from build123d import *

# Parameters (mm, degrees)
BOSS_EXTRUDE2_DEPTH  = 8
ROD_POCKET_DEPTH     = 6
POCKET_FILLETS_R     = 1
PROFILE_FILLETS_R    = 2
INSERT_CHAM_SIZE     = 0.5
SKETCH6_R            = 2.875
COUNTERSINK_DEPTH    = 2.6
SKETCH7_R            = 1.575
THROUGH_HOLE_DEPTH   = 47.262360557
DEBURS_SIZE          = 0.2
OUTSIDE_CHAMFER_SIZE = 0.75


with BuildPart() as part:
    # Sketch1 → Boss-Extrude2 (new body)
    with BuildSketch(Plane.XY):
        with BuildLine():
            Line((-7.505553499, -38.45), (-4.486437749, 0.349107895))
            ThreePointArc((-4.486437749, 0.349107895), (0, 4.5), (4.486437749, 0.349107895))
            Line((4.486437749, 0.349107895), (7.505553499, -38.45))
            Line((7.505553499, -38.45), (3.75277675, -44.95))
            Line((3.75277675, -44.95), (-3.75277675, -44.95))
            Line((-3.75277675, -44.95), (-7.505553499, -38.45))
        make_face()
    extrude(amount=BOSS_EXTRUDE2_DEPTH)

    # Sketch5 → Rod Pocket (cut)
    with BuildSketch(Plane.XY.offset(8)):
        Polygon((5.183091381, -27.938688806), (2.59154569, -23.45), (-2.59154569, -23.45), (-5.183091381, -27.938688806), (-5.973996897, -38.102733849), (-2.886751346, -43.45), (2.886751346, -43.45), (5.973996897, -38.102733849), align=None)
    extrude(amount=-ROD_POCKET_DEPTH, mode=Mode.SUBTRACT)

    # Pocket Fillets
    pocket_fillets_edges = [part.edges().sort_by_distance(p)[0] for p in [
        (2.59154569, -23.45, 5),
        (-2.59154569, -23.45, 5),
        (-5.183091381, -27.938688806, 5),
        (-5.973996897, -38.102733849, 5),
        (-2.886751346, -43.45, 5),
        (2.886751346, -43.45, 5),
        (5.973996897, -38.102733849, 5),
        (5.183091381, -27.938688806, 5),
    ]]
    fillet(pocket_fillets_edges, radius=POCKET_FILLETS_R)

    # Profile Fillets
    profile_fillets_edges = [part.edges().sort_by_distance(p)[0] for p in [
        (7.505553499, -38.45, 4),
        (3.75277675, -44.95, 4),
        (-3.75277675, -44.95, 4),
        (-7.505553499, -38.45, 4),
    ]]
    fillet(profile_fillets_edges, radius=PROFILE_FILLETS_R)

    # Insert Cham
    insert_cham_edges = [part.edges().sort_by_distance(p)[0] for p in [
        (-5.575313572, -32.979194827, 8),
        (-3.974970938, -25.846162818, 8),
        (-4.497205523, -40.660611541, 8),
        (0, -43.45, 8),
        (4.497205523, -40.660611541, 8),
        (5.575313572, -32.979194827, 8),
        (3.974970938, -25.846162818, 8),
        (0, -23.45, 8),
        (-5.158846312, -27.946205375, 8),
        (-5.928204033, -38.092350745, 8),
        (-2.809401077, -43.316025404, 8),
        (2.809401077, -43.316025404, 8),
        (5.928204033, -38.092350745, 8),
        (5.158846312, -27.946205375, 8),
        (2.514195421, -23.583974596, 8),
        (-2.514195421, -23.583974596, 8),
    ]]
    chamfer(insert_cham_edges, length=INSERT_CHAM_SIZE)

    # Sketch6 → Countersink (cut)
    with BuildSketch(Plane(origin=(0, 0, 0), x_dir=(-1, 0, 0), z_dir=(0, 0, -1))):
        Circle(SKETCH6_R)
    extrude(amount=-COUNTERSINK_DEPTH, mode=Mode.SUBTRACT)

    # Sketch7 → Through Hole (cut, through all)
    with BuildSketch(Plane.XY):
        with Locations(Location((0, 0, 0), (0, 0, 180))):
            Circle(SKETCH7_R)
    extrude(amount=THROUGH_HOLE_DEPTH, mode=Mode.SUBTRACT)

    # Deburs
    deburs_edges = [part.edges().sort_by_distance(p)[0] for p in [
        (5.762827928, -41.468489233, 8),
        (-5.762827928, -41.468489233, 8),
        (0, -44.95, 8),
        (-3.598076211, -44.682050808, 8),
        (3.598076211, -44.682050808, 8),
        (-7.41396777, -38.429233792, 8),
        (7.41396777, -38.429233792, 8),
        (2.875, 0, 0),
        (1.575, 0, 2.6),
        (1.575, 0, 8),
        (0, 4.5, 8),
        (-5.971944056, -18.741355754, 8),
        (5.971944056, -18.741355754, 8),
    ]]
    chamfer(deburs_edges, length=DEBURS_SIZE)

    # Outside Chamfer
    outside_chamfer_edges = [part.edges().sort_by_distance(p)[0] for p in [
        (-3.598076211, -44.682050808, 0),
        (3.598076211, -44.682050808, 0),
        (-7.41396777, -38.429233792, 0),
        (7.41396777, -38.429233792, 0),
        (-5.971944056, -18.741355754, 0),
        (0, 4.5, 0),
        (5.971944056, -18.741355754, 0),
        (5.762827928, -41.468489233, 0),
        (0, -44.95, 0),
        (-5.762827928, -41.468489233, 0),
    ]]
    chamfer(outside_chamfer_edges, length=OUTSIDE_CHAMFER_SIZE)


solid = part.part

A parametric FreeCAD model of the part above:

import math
import FreeCAD as App
import Part
import Sketcher
Q = App.Units.Quantity


def edges_at(feature, points):
    """Names of the edges that pass closest to the given points."""
    edges = feature.Shape.Edges
    near = lambda p: min(range(len(edges)), key=lambda i: edges[i].distToShape(Part.Vertex(*p))[0])
    return sorted({f"Edge{near(p) + 1}" for p in points})


def add_polygon(sketch, points):
    """Adds a closed chain of lines whose ends are joined by coincident constraints."""
    first, n = sketch.GeometryCount, len(points)
    for a, b in zip(points, points[1:] + points[:1]):
        sketch.addGeometry(Part.LineSegment(App.Vector(*a, 0), App.Vector(*b, 0)), False)
    for i in range(n):
        sketch.addConstraint(Sketcher.Constraint("Coincident", first + i, 2, first + (i + 1) % n, 1))

doc = App.newDocument("Part")
body = doc.addObject("PartDesign::Body", "Body")

# Sketch on XY plane
sketch1 = body.newObject("Sketcher::SketchObject", "Sketch")
sketch1.AttachmentSupport = (doc.getObject("XY_Plane"), [""])
sketch1.MapMode = "FlatFace"
sketch1.addGeometry([
    Part.LineSegment(App.Vector(-4.5, 0.3, 0), App.Vector(-7.5, -38.5, 0)),  # 0
    Part.LineSegment(App.Vector(-7.5, -38.5, 0), App.Vector(-3.8, -45, 0)),  # 1
    Part.LineSegment(App.Vector(-3.8, -45, 0), App.Vector(3.8, -45, 0)),  # 2
    Part.LineSegment(App.Vector(3.8, -45, 0), App.Vector(7.5, -38.5, 0)),  # 3
    Part.LineSegment(App.Vector(7.5, -38.5, 0), App.Vector(4.5, 0.3, 0)),  # 4
    Part.ArcOfCircle(Part.Circle(App.Vector(0, 0, 0), App.Vector(0, 0, 1), 4.5), math.radians(4), math.radians(176)),  # 5
], False)
sketch1.addConstraint([
    Sketcher.Constraint("Coincident", 0, 2, 1, 1),
    Sketcher.Constraint("Coincident", 1, 2, 2, 1),
    Sketcher.Constraint("Coincident", 2, 2, 3, 1),
    Sketcher.Constraint("Coincident", 3, 2, 4, 1),
    Sketcher.Constraint("Tangent", 4, 2, 5, 1),
    Sketcher.Constraint("Tangent", 5, 2, 0, 1),
    Sketcher.Constraint("Horizontal", 2),
    Sketcher.Constraint("Coincident", 5, 3, -1, 1),
    Sketcher.Constraint("Symmetric", 0, 2, 3, 2, -2),
    Sketcher.Constraint("Equal", 1, 3),
    Sketcher.Constraint("Radius", 5, 4.5),
    Sketcher.Constraint("Angle", 1, Q("-60 deg")),
    Sketcher.Constraint("DistanceY", 1, 2, 0, 2, 6.5),
    Sketcher.Constraint("DistanceY", 0, 2, -1, 1, 38.45),
    Sketcher.Constraint("DistanceX", 2, 1, 2, 2, 7.505554),
])
pad1 = body.newObject("PartDesign::Pad", "Pad")
pad1.Profile = sketch1
pad1.Length = 8

# Sketch on XY plane
sketch2 = body.newObject("Sketcher::SketchObject", "Sketch001")
sketch2.AttachmentSupport = (doc.getObject("XY_Plane"), [""])
sketch2.MapMode = "FlatFace"
sketch2.AttachmentOffset = App.Placement(App.Vector(0, 0, 8), App.Rotation())
add_polygon(sketch2, [(5, -28), (3, -23), (-3, -23), (-5, -28), (-6, -38), (-3, -43), (3, -43), (6, -38)])  # lines 0-7
sketch2.addConstraint([
    Sketcher.Constraint("Horizontal", 1),
    Sketcher.Constraint("Horizontal", 5),
    Sketcher.Constraint("Symmetric", 3, 2, 6, 2, -2),
    Sketcher.Constraint("Symmetric", 2, 2, 7, 2, -2),
    Sketcher.Constraint("Parallel", 0, 4),
    Sketcher.Constraint("Parallel", 2, 6),
    Sketcher.Constraint("Equal", 0, 2),
    Sketcher.Constraint("Angle", 0, Q("120 deg")),
    Sketcher.Constraint("DistanceY", 4, 2, 1, 2, 20.0),
    Sketcher.Constraint("DistanceY", 0, 2, -1, 1, 23.45),
    Sketcher.Constraint("DistanceX", 1, 2, 1, 1, 5.183091),
    Sketcher.Constraint("Distance", 0, 5.183091),
    Sketcher.Constraint("Distance", 3, 10.19477),
    Sketcher.Constraint("Distance", 4, 6.174491),
])
pocket1 = body.newObject("PartDesign::Pocket", "Pocket")
pocket1.Profile = sketch2
pocket1.Length = 6
doc.recompute()

fillet = body.newObject("PartDesign::Fillet", "Fillet")
fillet.Base = (pocket1, edges_at(pocket1, [
    (2.592, -23.45, 5),
    (-2.592, -23.45, 5),
    (-5.183, -27.939, 5),
    (-5.974, -38.103, 5),
    (-2.887, -43.45, 5),
    (2.887, -43.45, 5),
    (5.974, -38.103, 5),
    (5.183, -27.939, 5),
]))
fillet.Radius = 1
doc.recompute()

fillet2 = body.newObject("PartDesign::Fillet", "Fillet001")
fillet2.Base = (fillet, edges_at(fillet, [
    (7.506, -38.45, 4),
    (3.753, -44.95, 4),
    (-3.753, -44.95, 4),
    (-7.506, -38.45, 4),
]))
fillet2.Radius = 2
doc.recompute()

chamfer = body.newObject("PartDesign::Chamfer", "Chamfer")
chamfer.Base = (fillet2, edges_at(fillet2, [
    (-5.575, -32.979, 8),
    (-3.975, -25.846, 8),
    (-4.497, -40.661, 8),
    (0, -43.45, 8),
    (4.497, -40.661, 8),
    (5.575, -32.979, 8),
    (3.975, -25.846, 8),
    (0, -23.45, 8),
    (-5.159, -27.946, 8),
    (-5.928, -38.092, 8),
    (-2.809, -43.316, 8),
    (2.809, -43.316, 8),
    (5.928, -38.092, 8),
    (5.159, -27.946, 8),
    (2.514, -23.584, 8),
    (-2.514, -23.584, 8),
]))
chamfer.Size = 0.5

# Sketch on XY plane
sketch3 = body.newObject("Sketcher::SketchObject", "Sketch002")
sketch3.AttachmentSupport = (doc.getObject("XY_Plane"), [""])
sketch3.MapMode = "FlatFace"
sketch3.addGeometry(Part.Circle(App.Vector(0, 0, 0), App.Vector(0, 0, 1), 2.9), False)
sketch3.addConstraint([
    Sketcher.Constraint("Coincident", 0, 3, -1, 1),
    Sketcher.Constraint("Diameter", 0, 5.75),
])
pocket2 = body.newObject("PartDesign::Pocket", "Pocket001")
pocket2.Profile = sketch3
pocket2.Length = 2.6
pocket2.Reversed = True

# Sketch on XY plane
sketch4 = body.newObject("Sketcher::SketchObject", "Sketch003")
sketch4.AttachmentSupport = (doc.getObject("XY_Plane"), [""])
sketch4.MapMode = "FlatFace"
sketch4.addGeometry(Part.Circle(App.Vector(0, 0, 0), App.Vector(0, 0, 1), 1.6), False)
sketch4.addConstraint([
    Sketcher.Constraint("Coincident", 0, 3, -1, 1),
    Sketcher.Constraint("Diameter", 0, 3.15),
])
pocket3 = body.newObject("PartDesign::Pocket", "Pocket002")
pocket3.Profile = sketch4
pocket3.Type = "ThroughAll"
pocket3.Reversed = True
doc.recompute()

chamfer2 = body.newObject("PartDesign::Chamfer", "Chamfer001")
chamfer2.Base = (pocket3, edges_at(pocket3, [
    (5.763, -41.468, 8),
    (-5.763, -41.468, 8),
    (0, -44.95, 8),
    (-3.598, -44.682, 8),
    (3.598, -44.682, 8),
    (-7.414, -38.429, 8),
    (7.414, -38.429, 8),
    (2.875, 0, 0),
    (1.575, 0, 2.6),
    (1.575, 0, 8),
    (0, 4.5, 8),
    (-5.972, -18.741, 8),
    (5.972, -18.741, 8),
]))
chamfer2.Size = 0.2
doc.recompute()

chamfer3 = body.newObject("PartDesign::Chamfer", "Chamfer002")
chamfer3.Base = (chamfer2, edges_at(chamfer2, [
    (-3.598, -44.682, 0),
    (3.598, -44.682, 0),
    (-7.414, -38.429, 0),
    (7.414, -38.429, 0),
    (-5.972, -18.741, 0),
    (0, 4.5, 0),
    (5.972, -18.741, 0),
    (5.763, -41.468, 0),
    (0, -44.95, 0),
    (-5.763, -41.468, 0),
]))
chamfer3.Size = 0.75

doc.recompute()
